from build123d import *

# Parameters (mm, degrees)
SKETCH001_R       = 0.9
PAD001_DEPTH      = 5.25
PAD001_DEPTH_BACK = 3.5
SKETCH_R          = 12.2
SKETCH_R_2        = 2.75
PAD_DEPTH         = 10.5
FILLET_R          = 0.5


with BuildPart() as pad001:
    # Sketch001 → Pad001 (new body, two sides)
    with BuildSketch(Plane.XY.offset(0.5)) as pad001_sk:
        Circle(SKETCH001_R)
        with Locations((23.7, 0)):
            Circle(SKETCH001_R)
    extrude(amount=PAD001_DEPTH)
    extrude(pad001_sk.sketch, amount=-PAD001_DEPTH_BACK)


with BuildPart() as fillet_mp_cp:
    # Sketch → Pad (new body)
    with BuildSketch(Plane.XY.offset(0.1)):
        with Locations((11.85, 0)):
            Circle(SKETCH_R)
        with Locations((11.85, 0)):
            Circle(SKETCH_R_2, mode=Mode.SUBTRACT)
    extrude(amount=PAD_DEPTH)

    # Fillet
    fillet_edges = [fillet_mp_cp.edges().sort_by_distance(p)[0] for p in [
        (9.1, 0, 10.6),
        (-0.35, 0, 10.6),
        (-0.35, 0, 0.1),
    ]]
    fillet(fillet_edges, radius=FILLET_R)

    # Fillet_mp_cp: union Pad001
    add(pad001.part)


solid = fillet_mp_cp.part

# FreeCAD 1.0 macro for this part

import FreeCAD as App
import Part
import Sketcher


def edges_at(feature, points):
    """Names of the edges that pass closest to the given points."""
    edges = feature.Shape.Edges
    near = lambda p: min(range(len(edges)), key=lambda i: edges[i].distToShape(Part.Vertex(*p))[0])
    return sorted({f"Edge{near(p) + 1}" for p in points})

doc = App.newDocument("Part")
body = doc.addObject("PartDesign::Body", "Body")
body.AllowCompound = True

# Sketch on XY plane
sketch1 = body.newObject("Sketcher::SketchObject", "Sketch")
sketch1.AttachmentSupport = (doc.getObject("XY_Plane"), [""])
sketch1.MapMode = "FlatFace"
sketch1.AttachmentOffset = App.Placement(App.Vector(0, 0, 0.5), App.Rotation())
sketch1.addGeometry([
    Part.Circle(App.Vector(0, 0, 0), App.Vector(0, 0, 1), 0.9),
    Part.Circle(App.Vector(23.7, 0, 0), App.Vector(0, 0, 1), 0.9),
], False)
sketch1.addConstraint([
    Sketcher.Constraint("Coincident", 0, 3, -1, 1),
    Sketcher.Constraint("Equal", 0, 1),
    Sketcher.Constraint("PointOnObject", 1, 3, -1),
    Sketcher.Constraint("Diameter", 0, 1.8),
    Sketcher.Constraint("DistanceX", -1, 1, 1, 3, 23.7),
])
pad1 = body.newObject("PartDesign::Pad", "Pad")
pad1.Profile = sketch1
pad1.Type = "TwoLengths"
pad1.Length = 5.25
pad1.Length2 = 3.5
body2 = doc.addObject("PartDesign::Body", "Body001")

# Sketch on XY plane
sketch2 = body2.newObject("Sketcher::SketchObject", "Sketch001")
sketch2.AttachmentSupport = (doc.getObject("XY_Plane001"), [""])
sketch2.MapMode = "FlatFace"
sketch2.AttachmentOffset = App.Placement(App.Vector(0, 0, 0.1), App.Rotation())
sketch2.addGeometry([
    Part.Circle(App.Vector(11.8, 0, 0), App.Vector(0, 0, 1), 12.2),
    Part.Circle(App.Vector(11.8, 0, 0), App.Vector(0, 0, 1), 2.8),
], False)
sketch2.addConstraint([
    Sketcher.Constraint("Coincident", 1, 3, 0, 3),
    Sketcher.Constraint("PointOnObject", 0, 3, -1),
    Sketcher.Constraint("Diameter", 0, 24.4),
    Sketcher.Constraint("Diameter", 1, 5.5),
    Sketcher.Constraint("DistanceX", -1, 1, 0, 3, 11.85),
])
pad2 = body2.newObject("PartDesign::Pad", "Pad001")
pad2.Profile = sketch2
pad2.Length = 10.5
doc.recompute()

fillet = body2.newObject("PartDesign::Fillet", "Fillet")
fillet.Base = (pad2, edges_at(pad2, [(9.1, 0, 10.6), (-0.35, 0, 10.6), (-0.35, 0, 0.1)]))
fillet.Radius = 0.5
doc.recompute()

boolean = body2.newObject("PartDesign::Boolean", "Boolean")
boolean.Type = "Fuse"
boolean.addObjects([body])

doc.recompute()
